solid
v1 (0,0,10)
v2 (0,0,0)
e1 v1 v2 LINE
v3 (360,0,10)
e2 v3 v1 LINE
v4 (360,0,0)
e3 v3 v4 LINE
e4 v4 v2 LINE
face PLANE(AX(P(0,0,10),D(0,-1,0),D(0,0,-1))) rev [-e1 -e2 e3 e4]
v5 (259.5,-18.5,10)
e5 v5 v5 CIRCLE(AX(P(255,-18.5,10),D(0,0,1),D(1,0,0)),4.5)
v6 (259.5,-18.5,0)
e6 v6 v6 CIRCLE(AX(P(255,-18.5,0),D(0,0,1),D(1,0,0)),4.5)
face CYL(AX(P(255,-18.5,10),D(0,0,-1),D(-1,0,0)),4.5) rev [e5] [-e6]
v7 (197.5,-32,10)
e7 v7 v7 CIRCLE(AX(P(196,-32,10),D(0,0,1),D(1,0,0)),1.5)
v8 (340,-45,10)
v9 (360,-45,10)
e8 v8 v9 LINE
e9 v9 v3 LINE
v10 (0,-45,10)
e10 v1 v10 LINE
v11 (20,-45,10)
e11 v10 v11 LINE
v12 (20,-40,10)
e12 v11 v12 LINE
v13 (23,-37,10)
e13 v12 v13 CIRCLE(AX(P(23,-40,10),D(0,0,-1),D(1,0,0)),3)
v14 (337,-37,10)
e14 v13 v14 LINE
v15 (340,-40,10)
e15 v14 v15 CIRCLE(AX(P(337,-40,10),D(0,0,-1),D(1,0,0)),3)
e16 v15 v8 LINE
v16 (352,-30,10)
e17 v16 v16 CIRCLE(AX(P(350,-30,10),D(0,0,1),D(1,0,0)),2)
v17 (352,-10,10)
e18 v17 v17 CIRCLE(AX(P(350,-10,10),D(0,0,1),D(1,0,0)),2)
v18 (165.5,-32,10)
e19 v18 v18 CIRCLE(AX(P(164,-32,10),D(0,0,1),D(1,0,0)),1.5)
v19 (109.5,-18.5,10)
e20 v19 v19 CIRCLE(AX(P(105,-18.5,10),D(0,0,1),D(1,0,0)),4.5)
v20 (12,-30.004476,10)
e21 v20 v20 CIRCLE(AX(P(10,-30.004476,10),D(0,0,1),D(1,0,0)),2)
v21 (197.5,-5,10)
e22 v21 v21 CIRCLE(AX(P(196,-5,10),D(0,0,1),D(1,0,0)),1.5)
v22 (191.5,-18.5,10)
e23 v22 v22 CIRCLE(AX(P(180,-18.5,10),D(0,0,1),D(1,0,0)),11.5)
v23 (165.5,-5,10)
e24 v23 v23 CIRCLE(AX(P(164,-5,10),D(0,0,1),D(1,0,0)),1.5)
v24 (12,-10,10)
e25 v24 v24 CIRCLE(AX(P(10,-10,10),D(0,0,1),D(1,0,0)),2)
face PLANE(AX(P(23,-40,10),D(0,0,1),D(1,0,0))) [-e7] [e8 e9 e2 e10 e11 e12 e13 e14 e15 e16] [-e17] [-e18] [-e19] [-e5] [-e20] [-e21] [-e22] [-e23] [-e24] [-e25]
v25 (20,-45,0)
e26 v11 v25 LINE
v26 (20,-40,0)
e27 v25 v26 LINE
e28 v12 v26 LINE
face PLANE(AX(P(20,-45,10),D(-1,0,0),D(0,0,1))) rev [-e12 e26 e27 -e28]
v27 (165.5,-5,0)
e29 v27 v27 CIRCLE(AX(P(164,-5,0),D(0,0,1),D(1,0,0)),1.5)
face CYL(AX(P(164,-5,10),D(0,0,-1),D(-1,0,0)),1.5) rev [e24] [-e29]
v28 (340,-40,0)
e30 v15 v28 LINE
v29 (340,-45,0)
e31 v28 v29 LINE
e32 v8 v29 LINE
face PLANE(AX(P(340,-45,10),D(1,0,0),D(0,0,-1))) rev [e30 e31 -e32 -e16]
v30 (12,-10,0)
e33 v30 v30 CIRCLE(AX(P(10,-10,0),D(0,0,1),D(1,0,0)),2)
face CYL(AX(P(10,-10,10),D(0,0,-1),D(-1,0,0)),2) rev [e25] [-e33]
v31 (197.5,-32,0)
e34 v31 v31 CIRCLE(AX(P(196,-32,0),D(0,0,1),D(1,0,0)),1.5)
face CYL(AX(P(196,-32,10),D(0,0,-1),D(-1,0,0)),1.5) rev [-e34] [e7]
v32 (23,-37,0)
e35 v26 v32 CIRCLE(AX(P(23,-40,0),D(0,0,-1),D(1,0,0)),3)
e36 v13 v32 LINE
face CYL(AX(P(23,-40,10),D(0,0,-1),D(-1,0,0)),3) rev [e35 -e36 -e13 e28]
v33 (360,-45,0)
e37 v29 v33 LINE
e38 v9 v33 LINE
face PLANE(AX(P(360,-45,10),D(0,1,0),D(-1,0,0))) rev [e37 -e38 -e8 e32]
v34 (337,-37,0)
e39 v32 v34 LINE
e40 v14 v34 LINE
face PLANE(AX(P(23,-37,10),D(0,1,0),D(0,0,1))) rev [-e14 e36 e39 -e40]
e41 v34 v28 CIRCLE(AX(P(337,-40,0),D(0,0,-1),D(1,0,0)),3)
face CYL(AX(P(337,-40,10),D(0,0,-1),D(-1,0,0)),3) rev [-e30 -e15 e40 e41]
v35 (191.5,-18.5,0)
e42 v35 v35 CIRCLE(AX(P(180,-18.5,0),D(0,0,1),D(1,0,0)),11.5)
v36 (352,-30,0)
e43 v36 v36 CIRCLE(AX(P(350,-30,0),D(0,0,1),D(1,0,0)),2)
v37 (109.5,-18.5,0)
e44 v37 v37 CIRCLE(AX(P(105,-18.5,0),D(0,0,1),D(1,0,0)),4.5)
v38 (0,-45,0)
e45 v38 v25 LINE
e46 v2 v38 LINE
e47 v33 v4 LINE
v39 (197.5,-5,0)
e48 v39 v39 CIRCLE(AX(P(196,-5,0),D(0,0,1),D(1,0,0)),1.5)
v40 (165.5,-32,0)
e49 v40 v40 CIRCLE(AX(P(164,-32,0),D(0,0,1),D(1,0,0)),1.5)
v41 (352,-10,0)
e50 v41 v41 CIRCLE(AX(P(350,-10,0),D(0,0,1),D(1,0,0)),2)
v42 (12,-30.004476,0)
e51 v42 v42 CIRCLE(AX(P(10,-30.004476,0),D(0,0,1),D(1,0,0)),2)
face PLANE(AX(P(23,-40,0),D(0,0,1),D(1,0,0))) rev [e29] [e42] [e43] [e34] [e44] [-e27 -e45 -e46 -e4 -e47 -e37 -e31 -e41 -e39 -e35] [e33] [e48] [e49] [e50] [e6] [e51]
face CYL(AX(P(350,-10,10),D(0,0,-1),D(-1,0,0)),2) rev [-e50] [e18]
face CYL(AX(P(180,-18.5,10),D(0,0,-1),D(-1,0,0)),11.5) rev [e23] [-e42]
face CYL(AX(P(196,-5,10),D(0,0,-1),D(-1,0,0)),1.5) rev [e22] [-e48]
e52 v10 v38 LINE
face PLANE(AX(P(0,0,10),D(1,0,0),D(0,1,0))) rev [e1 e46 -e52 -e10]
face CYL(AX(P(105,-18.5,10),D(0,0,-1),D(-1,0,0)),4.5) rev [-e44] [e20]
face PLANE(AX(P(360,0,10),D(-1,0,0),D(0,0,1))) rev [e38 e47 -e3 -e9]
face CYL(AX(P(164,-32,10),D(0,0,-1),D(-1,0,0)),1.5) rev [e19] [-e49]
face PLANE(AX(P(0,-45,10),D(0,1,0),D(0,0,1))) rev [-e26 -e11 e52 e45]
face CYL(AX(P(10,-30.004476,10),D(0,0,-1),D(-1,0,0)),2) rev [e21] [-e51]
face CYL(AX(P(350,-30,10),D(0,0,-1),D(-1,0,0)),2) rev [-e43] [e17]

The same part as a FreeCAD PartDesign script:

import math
import FreeCAD as App
import Part
import Sketcher
from FreeCAD import Vector
Q = App.Units.Quantity

doc = App.newDocument("Part")
body = doc.addObject("PartDesign::Body", "Body")

# Sketch on XY plane
sketch1 = doc.addObject("Sketcher::SketchObject", "Sketch")
body.addObject(sketch1)
sketch1.AttachmentSupport = (doc.XY_Plane, [""])
sketch1.MapMode = "FlatFace"
sketch1.addGeometry(Part.LineSegment(Vector(360, 0, 0), Vector(0, 0, 0)), False)
sketch1.addGeometry(Part.LineSegment(Vector(0, 0, 0), Vector(0, -45, 0)), False)
sketch1.addGeometry(Part.LineSegment(Vector(0, -45, 0), Vector(20, -45, 0)), False)
sketch1.addGeometry(Part.LineSegment(Vector(20, -45, 0), Vector(20, -40, 0)), False)
sketch1.addGeometry(Part.ArcOfCircle(Part.Circle(Vector(23, -40, 0), Vector(0, 0, 1), 3), math.radians(90), math.radians(180)), False)
sketch1.addGeometry(Part.LineSegment(Vector(23, -37, 0), Vector(337, -37, 0)), False)
sketch1.addGeometry(Part.ArcOfCircle(Part.Circle(Vector(337, -40, 0), Vector(0, 0, 1), 3), math.radians(0), math.radians(90)), False)
sketch1.addGeometry(Part.LineSegment(Vector(340, -40, 0), Vector(340, -45, 0)), False)
sketch1.addGeometry(Part.LineSegment(Vector(340, -45, 0), Vector(360, -45, 0)), False)
sketch1.addGeometry(Part.LineSegment(Vector(360, -45, 0), Vector(360, 0, 0)), False)
sketch1.addGeometry(Part.Circle(Vector(350, -30, 0), Vector(0, 0, 1), 2), False)
sketch1.addGeometry(Part.Circle(Vector(196, -32, 0), Vector(0, 0, 1), 1.5), False)
sketch1.addGeometry(Part.Circle(Vector(164, -32, 0), Vector(0, 0, 1), 1.5), False)
sketch1.addGeometry(Part.Circle(Vector(10, -30.004476, 0), Vector(0, 0, 1), 2), False)
sketch1.addGeometry(Part.Circle(Vector(255, -18.5, 0), Vector(0, 0, 1), 4.5), False)
sketch1.addGeometry(Part.Circle(Vector(350, -10, 0), Vector(0, 0, 1), 2), False)
sketch1.addGeometry(Part.Circle(Vector(196, -5, 0), Vector(0, 0, 1), 1.5), False)
sketch1.addGeometry(Part.Circle(Vector(180, -18.5, 0), Vector(0, 0, 1), 11.5), False)
sketch1.addGeometry(Part.Circle(Vector(105, -18.5, 0), Vector(0, 0, 1), 4.5), False)
sketch1.addGeometry(Part.Circle(Vector(164, -5, 0), Vector(0, 0, 1), 1.5), False)
sketch1.addGeometry(Part.Circle(Vector(10, -10, 0), Vector(0, 0, 1), 2), False)
sketch1.addConstraint(Sketcher.Constraint("Coincident", 0, 2, 1, 1))
sketch1.addConstraint(Sketcher.Constraint("Coincident", 1, 2, 2, 1))
sketch1.addConstraint(Sketcher.Constraint("Coincident", 2, 2, 3, 1))
sketch1.addConstraint(Sketcher.Constraint("Tangent", 3, 2, 4, 2))
sketch1.addConstraint(Sketcher.Constraint("Tangent", 4, 1, 5, 1))
sketch1.addConstraint(Sketcher.Constraint("Tangent", 5, 2, 6, 2))
sketch1.addConstraint(Sketcher.Constraint("Tangent", 6, 1, 7, 1))
sketch1.addConstraint(Sketcher.Constraint("Coincident", 7, 2, 8, 1))
sketch1.addConstraint(Sketcher.Constraint("Coincident", 8, 2, 9, 1))
sketch1.addConstraint(Sketcher.Constraint("Coincident", 9, 2, 0, 1))
sketch1.addConstraint(Sketcher.Constraint("Horizontal", 0))
sketch1.addConstraint(Sketcher.Constraint("Vertical", 1))
sketch1.addConstraint(Sketcher.Constraint("Horizontal", 2))
sketch1.addConstraint(Sketcher.Constraint("Vertical", 3))
sketch1.addConstraint(Sketcher.Constraint("Horizontal", 5))
sketch1.addConstraint(Sketcher.Constraint("Vertical", 7))
sketch1.addConstraint(Sketcher.Constraint("Horizontal", 8))
sketch1.addConstraint(Sketcher.Constraint("Vertical", 9))
sketch1.addConstraint(Sketcher.Constraint("Coincident", 0, 2, -1, 1))
sketch1.addConstraint(Sketcher.Constraint("Equal", 4, 6))
sketch1.addConstraint(Sketcher.Constraint("Equal", 11, 12))
sketch1.addConstraint(Sketcher.Constraint("Equal", 10, 13))
sketch1.addConstraint(Sketcher.Constraint("Equal", 13, 15))
sketch1.addConstraint(Sketcher.Constraint("Equal", 12, 16))
sketch1.addConstraint(Sketcher.Constraint("Equal", 14, 18))
sketch1.addConstraint(Sketcher.Constraint("Equal", 16, 19))
sketch1.addConstraint(Sketcher.Constraint("Equal", 15, 20))
sketch1.addConstraint(Sketcher.Constraint("Horizontal", 11, 3, 12, 3))
sketch1.addConstraint(Sketcher.Constraint("Horizontal", 14, 3, 17, 3))
sketch1.addConstraint(Sketcher.Constraint("Horizontal", 17, 3, 18, 3))
sketch1.addConstraint(Sketcher.Constraint("Horizontal", 16, 3, 19, 3))
sketch1.addConstraint(Sketcher.Constraint("Horizontal", 15, 3, 20, 3))
sketch1.addConstraint(Sketcher.Constraint("Horizontal", 2, 2, 7, 2))
sketch1.addConstraint(Sketcher.Constraint("Vertical", 10, 3, 15, 3))
sketch1.addConstraint(Sketcher.Constraint("Vertical", 11, 3, 16, 3))
sketch1.addConstraint(Sketcher.Constraint("Vertical", 12, 3, 19, 3))
sketch1.addConstraint(Sketcher.Constraint("Vertical", 13, 3, 20, 3))
sketch1.addConstraint(Sketcher.Constraint("Equal", 2, 8))
sketch1.addConstraint(Sketcher.Constraint("Diameter", 10, Q("4 mm")))
sketch1.addConstraint(Sketcher.Constraint("Diameter", 11, Q("3 mm")))
sketch1.addConstraint(Sketcher.Constraint("Diameter", 14, Q("9 mm")))
sketch1.addConstraint(Sketcher.Constraint("Diameter", 17, Q("23 mm")))
sketch1.addConstraint(Sketcher.Constraint("Radius", 4, Q("3 mm")))
sketch1.addConstraint(Sketcher.Constraint("DistanceX", 0, 2, 0, 1, Q("360 mm")))
sketch1.addConstraint(Sketcher.Constraint("DistanceX", 2, 1, 2, 2, Q("20 mm")))
sketch1.addConstraint(Sketcher.Constraint("DistanceY", 1, 2, 1, 1, Q("45 mm")))
sketch1.addConstraint(Sketcher.Constraint("DistanceY", 3, 1, 3, 2, Q("5 mm")))
sketch1.addConstraint(Sketcher.Constraint("DistanceX", -1, 1, 10, 3, Q("350 mm")))
sketch1.addConstraint(Sketcher.Constraint("DistanceY", 10, 3, -1, 1, Q("30 mm")))
sketch1.addConstraint(Sketcher.Constraint("DistanceX", -1, 1, 11, 3, Q("196 mm")))
sketch1.addConstraint(Sketcher.Constraint("DistanceY", 11, 3, -1, 1, Q("32 mm")))
sketch1.addConstraint(Sketcher.Constraint("DistanceX", -1, 1, 12, 3, Q("164 mm")))
sketch1.addConstraint(Sketcher.Constraint("DistanceX", -1, 1, 13, 3, Q("10 mm")))
sketch1.addConstraint(Sketcher.Constraint("DistanceX", -1, 1, 14, 3, Q("255 mm")))
sketch1.addConstraint(Sketcher.Constraint("DistanceY", 15, 3, -1, 1, Q("10 mm")))
sketch1.addConstraint(Sketcher.Constraint("DistanceY", 16, 3, -1, 1, Q("5 mm")))
sketch1.addConstraint(Sketcher.Constraint("DistanceX", -1, 1, 17, 3, Q("180 mm")))
sketch1.addConstraint(Sketcher.Constraint("DistanceX", -1, 1, 18, 3, Q("105 mm")))
sketch1.addConstraint(Sketcher.Constraint("DistanceY", 14, 3, -1, 1, Q("18.5 mm")))
sketch1.addConstraint(Sketcher.Constraint("DistanceY", 13, 3, -1, 1, Q("30.004476 mm")))
pad1 = doc.addObject("PartDesign::Pad", "Pad")
body.addObject(pad1)
pad1.Profile = sketch1
pad1.Length = 10

doc.recompute()
